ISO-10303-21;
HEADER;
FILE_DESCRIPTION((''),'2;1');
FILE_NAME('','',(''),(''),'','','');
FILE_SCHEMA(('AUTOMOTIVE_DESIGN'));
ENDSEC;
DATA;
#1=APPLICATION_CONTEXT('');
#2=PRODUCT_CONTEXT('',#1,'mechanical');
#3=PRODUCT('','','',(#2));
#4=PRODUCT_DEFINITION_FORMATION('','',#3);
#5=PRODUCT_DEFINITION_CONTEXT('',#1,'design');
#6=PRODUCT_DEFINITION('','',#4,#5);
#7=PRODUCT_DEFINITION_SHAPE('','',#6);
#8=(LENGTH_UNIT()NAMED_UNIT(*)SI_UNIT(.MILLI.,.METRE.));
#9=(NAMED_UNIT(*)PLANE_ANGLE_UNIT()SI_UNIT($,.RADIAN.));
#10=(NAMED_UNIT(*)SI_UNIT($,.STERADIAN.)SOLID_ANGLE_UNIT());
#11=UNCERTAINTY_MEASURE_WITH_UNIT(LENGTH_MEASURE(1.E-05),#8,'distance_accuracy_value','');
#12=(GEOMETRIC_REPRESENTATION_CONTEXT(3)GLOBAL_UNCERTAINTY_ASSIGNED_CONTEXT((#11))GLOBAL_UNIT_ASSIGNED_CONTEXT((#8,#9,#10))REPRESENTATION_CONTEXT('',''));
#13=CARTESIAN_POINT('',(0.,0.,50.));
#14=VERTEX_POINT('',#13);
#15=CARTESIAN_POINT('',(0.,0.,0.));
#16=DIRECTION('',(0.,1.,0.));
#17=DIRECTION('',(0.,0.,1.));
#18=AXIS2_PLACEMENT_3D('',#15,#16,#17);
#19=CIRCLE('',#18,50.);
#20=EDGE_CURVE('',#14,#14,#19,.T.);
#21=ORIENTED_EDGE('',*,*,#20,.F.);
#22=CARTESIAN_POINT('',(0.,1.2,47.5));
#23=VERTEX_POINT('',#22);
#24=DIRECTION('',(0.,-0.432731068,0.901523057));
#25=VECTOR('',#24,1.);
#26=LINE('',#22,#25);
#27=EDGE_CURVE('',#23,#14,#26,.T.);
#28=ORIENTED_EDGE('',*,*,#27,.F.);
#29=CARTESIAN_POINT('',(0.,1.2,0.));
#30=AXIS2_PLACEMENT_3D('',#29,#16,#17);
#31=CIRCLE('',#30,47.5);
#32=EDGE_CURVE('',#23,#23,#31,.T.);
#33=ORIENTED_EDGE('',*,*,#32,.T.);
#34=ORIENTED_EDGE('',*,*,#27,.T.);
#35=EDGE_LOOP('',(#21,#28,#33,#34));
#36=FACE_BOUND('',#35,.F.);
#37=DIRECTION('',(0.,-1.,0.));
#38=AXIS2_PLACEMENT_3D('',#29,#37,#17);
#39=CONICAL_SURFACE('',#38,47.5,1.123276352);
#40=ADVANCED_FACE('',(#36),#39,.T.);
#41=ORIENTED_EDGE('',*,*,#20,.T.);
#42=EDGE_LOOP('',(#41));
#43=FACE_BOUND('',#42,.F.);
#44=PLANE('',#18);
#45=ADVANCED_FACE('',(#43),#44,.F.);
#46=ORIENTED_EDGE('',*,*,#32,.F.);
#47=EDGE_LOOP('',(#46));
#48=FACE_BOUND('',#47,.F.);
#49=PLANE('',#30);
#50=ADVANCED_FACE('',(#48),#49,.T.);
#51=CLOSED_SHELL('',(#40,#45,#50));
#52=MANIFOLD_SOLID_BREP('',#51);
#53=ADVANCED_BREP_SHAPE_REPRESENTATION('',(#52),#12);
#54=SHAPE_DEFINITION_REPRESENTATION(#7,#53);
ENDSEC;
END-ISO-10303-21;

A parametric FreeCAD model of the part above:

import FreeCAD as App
import Part
import Sketcher

V = App.Vector

doc = App.newDocument("Part")
body = doc.addObject("PartDesign::Body", "Body")

# Sketch on YZ plane
sketch1 = doc.addObject("Sketcher::SketchObject", "Sketch")
body.addObject(sketch1)
sketch1.AttachmentSupport = (doc.YZ_Plane, [""])
sketch1.MapMode = "FlatFace"
sketch1.addGeometry([
    Part.LineSegment(V(0, 0, 0), V(1.2, 0, 0)),
    Part.LineSegment(V(1.2, 0, 0), V(1.2, 47.5, 0)),
    Part.LineSegment(V(1.2, 47.5, 0), V(0, 50, 0)),
    Part.LineSegment(V(0, 50, 0), V(0, 0, 0)),
], False)
sketch1.addConstraint([
    Sketcher.Constraint("Coincident", 0, 2, 1, 1),
    Sketcher.Constraint("Coincident", 1, 2, 2, 1),
    Sketcher.Constraint("Coincident", 2, 2, 3, 1),
    Sketcher.Constraint("Coincident", 3, 2, 0, 1),
    Sketcher.Constraint("Horizontal", 0),
    Sketcher.Constraint("Vertical", 1),
    Sketcher.Constraint("Vertical", 3),
    Sketcher.Constraint("Coincident", 3, 2, -1, 1),
    Sketcher.Constraint("DistanceY", 3, 2, 3, 1, 50.0),
    Sketcher.Constraint("DistanceX", 0, 1, 0, 2, 1.2),
    Sketcher.Constraint("DistanceY", 1, 1, 1, 2, 47.5),
])
revolution = doc.addObject("PartDesign::Revolution", "Revolution")
body.addObject(revolution)
revolution.Profile = sketch1
revolution.ReferenceAxis = (sketch1, ["H_Axis"])
revolution.Angle = 360

doc.recompute()
